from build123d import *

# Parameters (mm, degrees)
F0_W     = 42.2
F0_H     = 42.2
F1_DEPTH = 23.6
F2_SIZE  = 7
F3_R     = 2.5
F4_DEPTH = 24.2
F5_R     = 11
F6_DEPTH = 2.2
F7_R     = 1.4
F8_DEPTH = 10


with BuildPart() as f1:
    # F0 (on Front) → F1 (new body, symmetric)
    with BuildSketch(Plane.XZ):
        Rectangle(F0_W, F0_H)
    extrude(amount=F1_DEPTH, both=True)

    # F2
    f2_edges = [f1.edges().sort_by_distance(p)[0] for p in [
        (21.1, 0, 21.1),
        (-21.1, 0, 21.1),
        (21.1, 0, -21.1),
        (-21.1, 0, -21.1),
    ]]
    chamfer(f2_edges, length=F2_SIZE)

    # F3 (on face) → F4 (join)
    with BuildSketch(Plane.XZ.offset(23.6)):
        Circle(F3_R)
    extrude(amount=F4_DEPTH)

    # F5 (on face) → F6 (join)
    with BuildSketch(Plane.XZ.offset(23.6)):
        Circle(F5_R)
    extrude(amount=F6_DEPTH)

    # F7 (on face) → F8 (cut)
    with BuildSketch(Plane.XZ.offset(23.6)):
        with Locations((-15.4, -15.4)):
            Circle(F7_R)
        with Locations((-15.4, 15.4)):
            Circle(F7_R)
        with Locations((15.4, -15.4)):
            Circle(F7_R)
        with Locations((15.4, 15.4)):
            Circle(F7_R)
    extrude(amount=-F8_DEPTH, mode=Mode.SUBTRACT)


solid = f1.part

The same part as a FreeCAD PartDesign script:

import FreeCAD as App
import Part
import Sketcher


def edges_at(feature, points):
    """Names of the edges that pass closest to the given points."""
    edges = feature.Shape.Edges
    near = lambda p: min(range(len(edges)), key=lambda i: edges[i].distToShape(Part.Vertex(*p))[0])
    return sorted({f"Edge{near(p) + 1}" for p in points})

doc = App.newDocument("Part")
body = doc.addObject("PartDesign::Body", "Body")

# Sketch on XZ plane
sketch1 = body.newObject("Sketcher::SketchObject", "Sketch")
sketch1.AttachmentSupport = (doc.getObject("XZ_Plane"), [""])
sketch1.MapMode = "FlatFace"
sketch1.addGeometry([
    Part.LineSegment(App.Vector(-21, 21, 0), App.Vector(-21, -21, 0)),
    Part.LineSegment(App.Vector(-21, -21, 0), App.Vector(21, -21, 0)),
    Part.LineSegment(App.Vector(21, -21, 0), App.Vector(21, 21, 0)),
    Part.LineSegment(App.Vector(21, 21, 0), App.Vector(-21, 21, 0)),
], False)
sketch1.addConstraint([
    Sketcher.Constraint("Coincident", 0, 2, 1, 1),
    Sketcher.Constraint("Coincident", 1, 2, 2, 1),
    Sketcher.Constraint("Coincident", 2, 2, 3, 1),
    Sketcher.Constraint("Coincident", 3, 2, 0, 1),
    Sketcher.Constraint("Vertical", 0),
    Sketcher.Constraint("Horizontal", 1),
    Sketcher.Constraint("Vertical", 2),
    Sketcher.Constraint("Horizontal", 3),
    Sketcher.Constraint("Symmetric", 0, 2, 2, 2, -1, 1),
    Sketcher.Constraint("Equal", 3, 0),
    Sketcher.Constraint("DistanceX", 1, 1, 1, 2, 42.2),
])
pad1 = body.newObject("PartDesign::Pad", "Pad")
pad1.Profile = sketch1
pad1.Length = 47.2
pad1.Midplane = True
doc.recompute()

chamfer = body.newObject("PartDesign::Chamfer", "Chamfer")
chamfer.Base = (pad1, edges_at(pad1, [
    (21.1, 0, 21.1),
    (-21.1, 0, 21.1),
    (21.1, 0, -21.1),
    (-21.1, 0, -21.1),
]))
chamfer.Size = 7

# Sketch on XZ plane
sketch2 = body.newObject("Sketcher::SketchObject", "Sketch001")
sketch2.AttachmentSupport = (doc.getObject("XZ_Plane"), [""])
sketch2.MapMode = "FlatFace"
sketch2.AttachmentOffset = App.Placement(App.Vector(0, 0, 23.6), App.Rotation())
sketch2.addGeometry(Part.Circle(App.Vector(0, 0, 0), App.Vector(0, 0, 1), 2.5), False)
sketch2.addConstraint([
    Sketcher.Constraint("Coincident", 0, 3, -1, 1),
    Sketcher.Constraint("Diameter", 0, 5.0),
])
pad2 = body.newObject("PartDesign::Pad", "Pad001")
pad2.Profile = sketch2
pad2.Length = 24.2

# Sketch on XZ plane
sketch3 = body.newObject("Sketcher::SketchObject", "Sketch002")
sketch3.AttachmentSupport = (doc.getObject("XZ_Plane"), [""])
sketch3.MapMode = "FlatFace"
sketch3.AttachmentOffset = App.Placement(App.Vector(0, 0, 23.6), App.Rotation())
sketch3.addGeometry(Part.Circle(App.Vector(0, 0, 0), App.Vector(0, 0, 1), 11), False)
sketch3.addConstraint([
    Sketcher.Constraint("Coincident", 0, 3, -1, 1),
    Sketcher.Constraint("Diameter", 0, 22.0),
])
pad3 = body.newObject("PartDesign::Pad", "Pad002")
pad3.Profile = sketch3
pad3.Length = 2.2

# Sketch on XZ plane
sketch4 = body.newObject("Sketcher::SketchObject", "Sketch003")
sketch4.AttachmentSupport = (doc.getObject("XZ_Plane"), [""])
sketch4.MapMode = "FlatFace"
sketch4.AttachmentOffset = App.Placement(App.Vector(0, 0, 23.6), App.Rotation())
sketch4.addGeometry([
    Part.Circle(App.Vector(-15.4, -15.4, 0), App.Vector(0, 0, 1), 1.4),
    Part.Circle(App.Vector(-15.4, 15.4, 0), App.Vector(0, 0, 1), 1.4),
    Part.Circle(App.Vector(15.4, -15.4, 0), App.Vector(0, 0, 1), 1.4),
    Part.Circle(App.Vector(15.4, 15.4, 0), App.Vector(0, 0, 1), 1.4),
], False)
sketch4.addConstraint([
    Sketcher.Constraint("Equal", 0, 1),
    Sketcher.Constraint("Equal", 1, 2),
    Sketcher.Constraint("Equal", 2, 3),
    Sketcher.Constraint("Symmetric", 1, 3, 2, 3, -1, 1),
    Sketcher.Constraint("Symmetric", 0, 3, 3, 3, -1, 1),
    Sketcher.Constraint("Symmetric", 0, 3, 2, 3, -2),
    Sketcher.Constraint("Diameter", 0, 2.8),
    Sketcher.Constraint("DistanceX", 0, 3, -1, 1, 15.4),
    Sketcher.Constraint("DistanceY", 0, 3, -1, 1, 15.4),
])
pocket1 = body.newObject("PartDesign::Pocket", "Pocket")
pocket1.Profile = sketch4
pocket1.Length = 10

doc.recompute()
